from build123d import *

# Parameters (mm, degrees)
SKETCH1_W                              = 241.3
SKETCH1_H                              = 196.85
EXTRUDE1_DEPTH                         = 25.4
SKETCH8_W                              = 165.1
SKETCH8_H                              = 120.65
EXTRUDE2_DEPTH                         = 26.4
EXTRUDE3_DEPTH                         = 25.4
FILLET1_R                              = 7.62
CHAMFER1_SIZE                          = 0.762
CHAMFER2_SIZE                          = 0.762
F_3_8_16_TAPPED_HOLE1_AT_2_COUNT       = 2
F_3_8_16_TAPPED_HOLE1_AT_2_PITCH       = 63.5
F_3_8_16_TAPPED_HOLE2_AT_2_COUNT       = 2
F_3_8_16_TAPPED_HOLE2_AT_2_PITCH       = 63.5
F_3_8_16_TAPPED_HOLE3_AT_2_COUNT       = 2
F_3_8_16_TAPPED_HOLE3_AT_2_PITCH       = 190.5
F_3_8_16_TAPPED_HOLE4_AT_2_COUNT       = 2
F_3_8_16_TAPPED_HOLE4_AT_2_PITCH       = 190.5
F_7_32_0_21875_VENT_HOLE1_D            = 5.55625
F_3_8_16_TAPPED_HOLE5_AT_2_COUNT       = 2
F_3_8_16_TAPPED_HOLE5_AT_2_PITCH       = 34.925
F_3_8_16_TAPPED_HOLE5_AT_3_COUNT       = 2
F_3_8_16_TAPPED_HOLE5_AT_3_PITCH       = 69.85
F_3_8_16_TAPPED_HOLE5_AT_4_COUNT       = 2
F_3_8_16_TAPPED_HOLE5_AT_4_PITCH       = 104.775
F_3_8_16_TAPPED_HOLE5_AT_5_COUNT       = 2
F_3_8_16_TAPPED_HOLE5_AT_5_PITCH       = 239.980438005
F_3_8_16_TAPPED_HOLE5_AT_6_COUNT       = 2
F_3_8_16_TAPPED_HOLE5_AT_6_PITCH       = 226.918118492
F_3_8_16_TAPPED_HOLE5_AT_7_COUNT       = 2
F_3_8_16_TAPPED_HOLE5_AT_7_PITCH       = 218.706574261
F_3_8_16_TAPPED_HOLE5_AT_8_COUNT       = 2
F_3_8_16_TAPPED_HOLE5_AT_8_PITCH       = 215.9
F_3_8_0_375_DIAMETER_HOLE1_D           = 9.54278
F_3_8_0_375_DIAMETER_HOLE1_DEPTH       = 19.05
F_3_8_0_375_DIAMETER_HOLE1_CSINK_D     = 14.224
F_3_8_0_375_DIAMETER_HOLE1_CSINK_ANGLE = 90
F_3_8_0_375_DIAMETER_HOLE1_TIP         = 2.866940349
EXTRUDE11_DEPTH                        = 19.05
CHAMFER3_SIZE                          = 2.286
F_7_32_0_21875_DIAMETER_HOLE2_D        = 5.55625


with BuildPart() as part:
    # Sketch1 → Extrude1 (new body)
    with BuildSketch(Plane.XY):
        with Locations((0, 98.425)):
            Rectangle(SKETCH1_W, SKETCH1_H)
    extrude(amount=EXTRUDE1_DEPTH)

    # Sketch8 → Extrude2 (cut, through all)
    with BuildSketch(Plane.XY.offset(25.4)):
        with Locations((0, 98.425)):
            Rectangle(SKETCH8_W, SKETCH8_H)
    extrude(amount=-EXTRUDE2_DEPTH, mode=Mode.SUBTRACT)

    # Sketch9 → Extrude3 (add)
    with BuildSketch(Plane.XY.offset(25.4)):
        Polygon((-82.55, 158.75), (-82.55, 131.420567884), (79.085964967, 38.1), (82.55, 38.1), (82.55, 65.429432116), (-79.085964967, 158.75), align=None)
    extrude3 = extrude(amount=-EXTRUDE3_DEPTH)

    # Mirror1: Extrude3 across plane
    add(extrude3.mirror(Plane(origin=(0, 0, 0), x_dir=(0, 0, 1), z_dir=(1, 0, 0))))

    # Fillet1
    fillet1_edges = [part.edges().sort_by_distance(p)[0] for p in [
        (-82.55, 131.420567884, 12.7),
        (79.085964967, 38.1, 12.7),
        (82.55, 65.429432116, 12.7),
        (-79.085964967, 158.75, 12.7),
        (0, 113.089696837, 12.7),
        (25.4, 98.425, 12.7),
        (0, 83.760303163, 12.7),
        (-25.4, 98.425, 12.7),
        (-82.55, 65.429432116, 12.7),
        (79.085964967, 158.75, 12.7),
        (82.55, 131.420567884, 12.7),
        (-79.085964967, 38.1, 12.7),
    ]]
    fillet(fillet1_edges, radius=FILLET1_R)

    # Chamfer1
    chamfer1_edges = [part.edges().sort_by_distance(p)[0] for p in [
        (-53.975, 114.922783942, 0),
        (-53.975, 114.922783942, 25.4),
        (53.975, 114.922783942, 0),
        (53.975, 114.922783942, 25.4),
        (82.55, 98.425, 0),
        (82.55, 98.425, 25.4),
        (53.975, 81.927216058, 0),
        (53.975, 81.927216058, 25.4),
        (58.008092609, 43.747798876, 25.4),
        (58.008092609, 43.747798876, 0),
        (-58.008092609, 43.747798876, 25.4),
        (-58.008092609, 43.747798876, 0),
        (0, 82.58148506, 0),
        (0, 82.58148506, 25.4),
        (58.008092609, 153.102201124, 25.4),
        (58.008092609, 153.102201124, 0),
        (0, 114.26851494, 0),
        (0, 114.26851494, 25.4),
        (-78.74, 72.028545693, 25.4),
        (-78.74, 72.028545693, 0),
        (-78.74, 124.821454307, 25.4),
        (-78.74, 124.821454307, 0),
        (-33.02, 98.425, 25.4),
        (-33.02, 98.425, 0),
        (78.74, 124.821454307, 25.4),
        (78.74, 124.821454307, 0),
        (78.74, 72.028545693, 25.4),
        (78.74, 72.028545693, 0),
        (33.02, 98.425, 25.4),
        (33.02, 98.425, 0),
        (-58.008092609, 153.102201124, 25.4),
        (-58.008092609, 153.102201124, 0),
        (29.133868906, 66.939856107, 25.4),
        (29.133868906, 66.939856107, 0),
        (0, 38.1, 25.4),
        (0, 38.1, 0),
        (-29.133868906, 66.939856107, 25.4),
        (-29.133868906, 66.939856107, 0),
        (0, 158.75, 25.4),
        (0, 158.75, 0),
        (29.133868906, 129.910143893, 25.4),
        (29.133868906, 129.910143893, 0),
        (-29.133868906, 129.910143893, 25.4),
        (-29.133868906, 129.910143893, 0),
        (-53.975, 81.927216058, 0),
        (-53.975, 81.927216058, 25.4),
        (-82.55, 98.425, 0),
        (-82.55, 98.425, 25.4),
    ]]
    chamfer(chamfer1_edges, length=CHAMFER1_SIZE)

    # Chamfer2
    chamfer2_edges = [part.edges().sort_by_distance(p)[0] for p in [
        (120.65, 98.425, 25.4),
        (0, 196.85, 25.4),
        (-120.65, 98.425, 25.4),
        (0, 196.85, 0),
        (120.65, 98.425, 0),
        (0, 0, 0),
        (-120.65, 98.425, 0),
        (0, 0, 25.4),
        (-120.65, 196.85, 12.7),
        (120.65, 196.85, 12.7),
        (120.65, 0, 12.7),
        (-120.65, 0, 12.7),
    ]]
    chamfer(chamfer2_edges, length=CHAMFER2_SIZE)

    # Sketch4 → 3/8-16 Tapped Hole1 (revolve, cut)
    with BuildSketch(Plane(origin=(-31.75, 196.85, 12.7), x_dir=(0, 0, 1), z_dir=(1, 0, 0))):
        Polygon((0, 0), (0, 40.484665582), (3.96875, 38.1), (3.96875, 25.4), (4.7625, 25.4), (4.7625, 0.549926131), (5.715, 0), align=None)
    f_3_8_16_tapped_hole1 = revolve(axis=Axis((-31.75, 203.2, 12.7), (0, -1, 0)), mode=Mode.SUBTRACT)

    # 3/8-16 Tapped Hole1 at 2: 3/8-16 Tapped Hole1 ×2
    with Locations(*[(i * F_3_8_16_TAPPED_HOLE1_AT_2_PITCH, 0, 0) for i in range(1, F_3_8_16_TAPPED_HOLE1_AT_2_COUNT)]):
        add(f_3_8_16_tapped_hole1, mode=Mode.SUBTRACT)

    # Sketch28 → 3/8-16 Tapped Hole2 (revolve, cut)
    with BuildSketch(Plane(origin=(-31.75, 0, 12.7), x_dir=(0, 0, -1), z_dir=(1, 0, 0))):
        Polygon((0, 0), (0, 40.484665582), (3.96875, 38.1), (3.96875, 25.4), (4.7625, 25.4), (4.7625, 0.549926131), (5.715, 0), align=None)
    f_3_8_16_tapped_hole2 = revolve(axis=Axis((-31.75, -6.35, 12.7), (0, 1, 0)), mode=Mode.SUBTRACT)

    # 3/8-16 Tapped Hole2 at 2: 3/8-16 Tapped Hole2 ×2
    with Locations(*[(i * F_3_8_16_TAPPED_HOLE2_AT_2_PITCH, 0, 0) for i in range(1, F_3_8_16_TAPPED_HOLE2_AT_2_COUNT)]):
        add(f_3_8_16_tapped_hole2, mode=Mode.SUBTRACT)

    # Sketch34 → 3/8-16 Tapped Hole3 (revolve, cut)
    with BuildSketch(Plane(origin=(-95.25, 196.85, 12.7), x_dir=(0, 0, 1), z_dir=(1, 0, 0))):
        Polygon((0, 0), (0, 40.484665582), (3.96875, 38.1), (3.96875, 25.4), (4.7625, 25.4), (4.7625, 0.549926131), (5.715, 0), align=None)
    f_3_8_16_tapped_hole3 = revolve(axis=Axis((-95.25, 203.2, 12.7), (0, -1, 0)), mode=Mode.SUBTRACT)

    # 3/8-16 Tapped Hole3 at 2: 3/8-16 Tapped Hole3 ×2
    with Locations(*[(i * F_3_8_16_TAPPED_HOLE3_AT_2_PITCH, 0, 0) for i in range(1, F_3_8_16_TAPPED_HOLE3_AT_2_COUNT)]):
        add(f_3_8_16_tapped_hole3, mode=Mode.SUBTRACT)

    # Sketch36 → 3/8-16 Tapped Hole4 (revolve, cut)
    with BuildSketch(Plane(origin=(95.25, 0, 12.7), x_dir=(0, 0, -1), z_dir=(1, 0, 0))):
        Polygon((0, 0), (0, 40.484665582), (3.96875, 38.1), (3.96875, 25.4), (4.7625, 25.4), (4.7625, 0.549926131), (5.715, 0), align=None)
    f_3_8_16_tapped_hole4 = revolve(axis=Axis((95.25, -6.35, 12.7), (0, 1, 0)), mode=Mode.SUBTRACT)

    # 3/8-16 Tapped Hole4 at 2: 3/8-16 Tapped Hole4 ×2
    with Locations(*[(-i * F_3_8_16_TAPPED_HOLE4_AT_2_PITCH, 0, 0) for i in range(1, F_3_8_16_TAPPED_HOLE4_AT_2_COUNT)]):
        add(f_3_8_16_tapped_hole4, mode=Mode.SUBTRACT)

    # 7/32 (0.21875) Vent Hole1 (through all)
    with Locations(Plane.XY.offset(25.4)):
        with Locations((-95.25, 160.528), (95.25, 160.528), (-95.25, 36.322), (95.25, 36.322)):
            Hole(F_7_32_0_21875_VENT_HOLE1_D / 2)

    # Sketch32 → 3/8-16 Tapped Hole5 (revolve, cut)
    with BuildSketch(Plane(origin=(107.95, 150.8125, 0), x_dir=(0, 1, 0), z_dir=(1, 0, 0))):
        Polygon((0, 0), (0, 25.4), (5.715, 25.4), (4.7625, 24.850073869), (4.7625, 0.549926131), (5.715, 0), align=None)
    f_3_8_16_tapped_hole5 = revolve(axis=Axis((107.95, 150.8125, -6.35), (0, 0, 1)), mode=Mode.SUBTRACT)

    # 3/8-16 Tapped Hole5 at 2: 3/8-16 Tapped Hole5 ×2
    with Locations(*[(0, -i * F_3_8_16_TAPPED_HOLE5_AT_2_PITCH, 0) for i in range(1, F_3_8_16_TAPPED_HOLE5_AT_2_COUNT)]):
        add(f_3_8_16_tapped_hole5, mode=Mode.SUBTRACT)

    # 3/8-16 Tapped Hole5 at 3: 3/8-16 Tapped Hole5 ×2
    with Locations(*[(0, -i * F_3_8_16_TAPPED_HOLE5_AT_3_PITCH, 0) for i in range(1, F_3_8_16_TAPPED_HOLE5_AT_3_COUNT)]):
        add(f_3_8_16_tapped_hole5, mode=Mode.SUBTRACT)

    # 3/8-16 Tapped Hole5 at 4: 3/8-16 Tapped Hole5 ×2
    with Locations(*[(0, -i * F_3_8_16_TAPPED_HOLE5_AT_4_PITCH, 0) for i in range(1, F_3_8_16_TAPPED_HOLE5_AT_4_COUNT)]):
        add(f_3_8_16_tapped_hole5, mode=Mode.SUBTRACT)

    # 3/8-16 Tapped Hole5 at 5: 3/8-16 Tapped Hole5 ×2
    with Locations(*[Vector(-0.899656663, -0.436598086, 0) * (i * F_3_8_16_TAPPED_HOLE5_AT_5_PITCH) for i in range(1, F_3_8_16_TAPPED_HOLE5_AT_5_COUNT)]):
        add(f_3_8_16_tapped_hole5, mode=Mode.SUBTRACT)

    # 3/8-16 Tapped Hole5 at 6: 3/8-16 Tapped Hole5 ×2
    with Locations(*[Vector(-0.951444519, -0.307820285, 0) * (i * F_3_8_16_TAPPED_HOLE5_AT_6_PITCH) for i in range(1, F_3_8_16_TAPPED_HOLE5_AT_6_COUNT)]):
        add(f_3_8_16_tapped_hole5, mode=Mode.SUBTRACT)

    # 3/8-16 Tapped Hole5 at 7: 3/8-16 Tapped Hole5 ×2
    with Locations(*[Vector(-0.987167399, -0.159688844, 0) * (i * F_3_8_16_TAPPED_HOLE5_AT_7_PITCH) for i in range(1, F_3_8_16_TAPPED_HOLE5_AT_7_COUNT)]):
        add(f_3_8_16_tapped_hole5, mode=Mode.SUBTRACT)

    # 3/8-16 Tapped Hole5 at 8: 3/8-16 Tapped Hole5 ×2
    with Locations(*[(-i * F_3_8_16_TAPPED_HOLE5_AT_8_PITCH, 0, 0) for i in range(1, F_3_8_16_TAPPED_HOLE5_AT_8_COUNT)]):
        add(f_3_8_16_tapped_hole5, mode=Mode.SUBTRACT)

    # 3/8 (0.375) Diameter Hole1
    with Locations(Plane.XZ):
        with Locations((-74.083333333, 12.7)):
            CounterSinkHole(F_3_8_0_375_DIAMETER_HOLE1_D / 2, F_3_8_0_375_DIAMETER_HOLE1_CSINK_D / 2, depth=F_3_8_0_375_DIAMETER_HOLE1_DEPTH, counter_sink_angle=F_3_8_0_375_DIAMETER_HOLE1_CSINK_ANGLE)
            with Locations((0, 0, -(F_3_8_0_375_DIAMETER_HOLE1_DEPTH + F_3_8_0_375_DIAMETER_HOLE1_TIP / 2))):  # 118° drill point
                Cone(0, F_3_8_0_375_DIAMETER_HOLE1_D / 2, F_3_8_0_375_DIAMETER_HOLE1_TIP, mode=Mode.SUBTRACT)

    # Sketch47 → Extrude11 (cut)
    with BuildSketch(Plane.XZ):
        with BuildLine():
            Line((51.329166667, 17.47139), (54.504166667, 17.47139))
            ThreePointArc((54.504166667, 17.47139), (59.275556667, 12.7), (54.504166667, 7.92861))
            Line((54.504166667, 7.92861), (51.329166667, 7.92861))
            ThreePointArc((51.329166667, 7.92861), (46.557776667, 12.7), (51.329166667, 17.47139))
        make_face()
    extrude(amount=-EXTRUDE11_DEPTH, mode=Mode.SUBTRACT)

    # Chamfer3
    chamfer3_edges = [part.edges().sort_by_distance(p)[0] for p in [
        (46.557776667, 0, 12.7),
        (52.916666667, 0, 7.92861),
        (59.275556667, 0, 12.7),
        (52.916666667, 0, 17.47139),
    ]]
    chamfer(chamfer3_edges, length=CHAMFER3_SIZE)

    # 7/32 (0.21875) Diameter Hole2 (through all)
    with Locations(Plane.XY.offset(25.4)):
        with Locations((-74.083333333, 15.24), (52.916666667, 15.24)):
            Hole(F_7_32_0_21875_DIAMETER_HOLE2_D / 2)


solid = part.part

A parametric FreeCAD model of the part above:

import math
import FreeCAD as App
import Part
import Sketcher
from FreeCAD import Vector
Q = App.Units.Quantity


def edges_at(feature, points):
    """Names of the edges that pass closest to the given points."""
    edges = feature.Shape.Edges
    near = lambda p: min(range(len(edges)), key=lambda i: edges[i].distToShape(Part.Vertex(*p))[0])
    return sorted({f"Edge{near(p) + 1}" for p in points})

doc = App.newDocument("Part")
body = doc.addObject("PartDesign::Body", "Body")

sketch1 = body.newObject("Sketcher::SketchObject", "Sketch")
sketch1.AttachmentSupport = (doc.getObject("XY_Plane"), [""])
sketch1.MapMode = "FlatFace"
sketch1.addGeometry(Part.LineSegment(Vector(-120.65, 196.85, 0), Vector(-120.65, 0, 0)), False)
sketch1.addGeometry(Part.LineSegment(Vector(-120.65, 0, 0), Vector(120.65, 0, 0)), False)
sketch1.addGeometry(Part.LineSegment(Vector(120.65, 0, 0), Vector(120.65, 196.85, 0)), False)
sketch1.addGeometry(Part.LineSegment(Vector(120.65, 196.85, 0), Vector(-120.65, 196.85, 0)), False)
sketch1.addConstraint(Sketcher.Constraint("Coincident", 0, 2, 1, 1))
sketch1.addConstraint(Sketcher.Constraint("Coincident", 1, 2, 2, 1))
sketch1.addConstraint(Sketcher.Constraint("Coincident", 2, 2, 3, 1))
sketch1.addConstraint(Sketcher.Constraint("Coincident", 3, 2, 0, 1))
sketch1.addConstraint(Sketcher.Constraint("Vertical", 0))
sketch1.addConstraint(Sketcher.Constraint("Horizontal", 1))
sketch1.addConstraint(Sketcher.Constraint("Vertical", 2))
sketch1.addConstraint(Sketcher.Constraint("Horizontal", 3))
sketch1.addConstraint(Sketcher.Constraint("Symmetric", 0, 2, 1, 2, -1, 1))
sketch1.addConstraint(Sketcher.Constraint("DistanceX", 1, 1, 1, 2, Q("9.5 in")))
sketch1.addConstraint(Sketcher.Constraint("DistanceY", 0, 2, 0, 1, Q("7.75 in")))
pad1 = body.newObject("PartDesign::Pad", "Pad")
pad1.Profile = sketch1
pad1.Length = Q("1 in")

sketch2 = body.newObject("Sketcher::SketchObject", "Sketch001")
sketch2.AttachmentSupport = (doc.getObject("XY_Plane"), [""])
sketch2.MapMode = "FlatFace"
sketch2.AttachmentOffset = App.Placement(Vector(0, 0, 1 * 25.4), App.Rotation())
sketch2.addGeometry(Part.LineSegment(Vector(-82.55, 158.75, 0), Vector(-82.55, 38.1, 0)), False)
sketch2.addGeometry(Part.LineSegment(Vector(-82.55, 38.1, 0), Vector(82.55, 38.1, 0)), False)
sketch2.addGeometry(Part.LineSegment(Vector(82.55, 38.1, 0), Vector(82.55, 158.75, 0)), False)
sketch2.addGeometry(Part.LineSegment(Vector(82.55, 158.75, 0), Vector(-82.55, 158.75, 0)), False)
sketch2.addConstraint(Sketcher.Constraint("Coincident", 0, 2, 1, 1))
sketch2.addConstraint(Sketcher.Constraint("Coincident", 1, 2, 2, 1))
sketch2.addConstraint(Sketcher.Constraint("Coincident", 2, 2, 3, 1))
sketch2.addConstraint(Sketcher.Constraint("Coincident", 3, 2, 0, 1))
sketch2.addConstraint(Sketcher.Constraint("Vertical", 0))
sketch2.addConstraint(Sketcher.Constraint("Horizontal", 1))
sketch2.addConstraint(Sketcher.Constraint("Vertical", 2))
sketch2.addConstraint(Sketcher.Constraint("Horizontal", 3))
sketch2.addConstraint(Sketcher.Constraint("DistanceX", 1, 1, 1, 2, Q("6.5 in")))
sketch2.addConstraint(Sketcher.Constraint("DistanceY", 0, 2, 0, 1, Q("4.75 in")))
sketch2.addConstraint(Sketcher.Constraint("DistanceY", -1, 1, 0, 2, Q("1.5 in")))
sketch2.addConstraint(Sketcher.Constraint("DistanceX", 0, 2, -1, 1, Q("3.25 in")))
pocket1 = body.newObject("PartDesign::Pocket", "Pocket")
pocket1.Profile = sketch2
pocket1.Type = "ThroughAll"

sketch3 = body.newObject("Sketcher::SketchObject", "Sketch002")
sketch3.AttachmentSupport = (doc.getObject("XY_Plane"), [""])
sketch3.MapMode = "FlatFace"
sketch3.AttachmentOffset = App.Placement(Vector(0, 0, 1 * 25.4), App.Rotation())
sketch3.addGeometry(Part.LineSegment(Vector(-82.55, 158.75, 0), Vector(-82.55, 131.420568, 0)), False)
sketch3.addGeometry(Part.LineSegment(Vector(-82.55, 131.420568, 0), Vector(79.085965, 38.1, 0)), False)
sketch3.addGeometry(Part.LineSegment(Vector(79.085965, 38.1, 0), Vector(82.55, 38.1, 0)), False)
sketch3.addGeometry(Part.LineSegment(Vector(82.55, 38.1, 0), Vector(82.55, 65.429432, 0)), False)
sketch3.addGeometry(Part.LineSegment(Vector(82.55, 65.429432, 0), Vector(-79.085965, 158.75, 0)), False)
sketch3.addGeometry(Part.LineSegment(Vector(-79.085965, 158.75, 0), Vector(-82.55, 158.75, 0)), False)
sketch3.addConstraint(Sketcher.Constraint("Coincident", 0, 2, 1, 1))
sketch3.addConstraint(Sketcher.Constraint("Coincident", 1, 2, 2, 1))
sketch3.addConstraint(Sketcher.Constraint("Coincident", 2, 2, 3, 1))
sketch3.addConstraint(Sketcher.Constraint("Coincident", 3, 2, 4, 1))
sketch3.addConstraint(Sketcher.Constraint("Coincident", 4, 2, 5, 1))
sketch3.addConstraint(Sketcher.Constraint("Coincident", 5, 2, 0, 1))
sketch3.addConstraint(Sketcher.Constraint("Vertical", 0))
sketch3.addConstraint(Sketcher.Constraint("Horizontal", 2))
sketch3.addConstraint(Sketcher.Constraint("Vertical", 3))
sketch3.addConstraint(Sketcher.Constraint("Horizontal", 5))
sketch3.addConstraint(Sketcher.Constraint("Parallel", 1, 4))
sketch3.addConstraint(Sketcher.Constraint("Equal", 2, 5))
sketch3.addConstraint(Sketcher.Constraint("Angle", 1, Q("-30 deg")))
sketch3.addConstraint(Sketcher.Constraint("DistanceY", -1, 1, 1, 2, Q("1.5 in")))
sketch3.addConstraint(Sketcher.Constraint("DistanceX", 0, 2, 2, 2, Q("6.5 in")))
sketch3.addConstraint(Sketcher.Constraint("DistanceX", 0, 2, -1, 1, Q("3.25 in")))
sketch3.addConstraint(Sketcher.Constraint("DistanceY", -1, 1, 4, 2, Q("6.25 in")))
sketch3.addConstraint(Sketcher.Constraint("DistanceX", 2, 1, 2, 2, 3.464035))
pad2 = body.newObject("PartDesign::Pad", "Pad001")
pad2.Profile = sketch3
pad2.Length = Q("1 in")
pad2.Reversed = True
doc.recompute()

mirrored = body.newObject("PartDesign::Mirrored", "Mirrored")
mirrored.Originals = [pad2]
mirrored.MirrorPlane = (doc.getObject("YZ_Plane"), [""])
body.Tip = mirrored
doc.recompute()

fillet = body.newObject("PartDesign::Fillet", "Fillet")
fillet.Base = (mirrored, edges_at(mirrored, [
    (-82.55, 131.421, 12.7),
    (79.086, 38.1, 12.7),
    (82.55, 65.429, 12.7),
    (-79.086, 158.75, 12.7),
    (0, 113.09, 12.7),
    (25.4, 98.425, 12.7),
    (0, 83.76, 12.7),
    (-25.4, 98.425, 12.7),
    (-82.55, 65.429, 12.7),
    (79.086, 158.75, 12.7),
    (82.55, 131.421, 12.7),
    (-79.086, 38.1, 12.7),
]))
fillet.Radius = Q("0.3 in")
doc.recompute()

chamfer = body.newObject("PartDesign::Chamfer", "Chamfer")
chamfer.Base = (fillet, edges_at(fillet, [
    (-53.975, 114.923, 0),
    (-53.975, 114.923, 25.4),
    (53.975, 114.923, 0),
    (53.975, 114.923, 25.4),
    (82.55, 98.425, 0),
    (82.55, 98.425, 25.4),
    (53.975, 81.927, 0),
    (53.975, 81.927, 25.4),
    (58.008, 43.748, 25.4),
    (58.008, 43.748, 0),
    (-58.008, 43.748, 25.4),
    (-58.008, 43.748, 0),
    (0, 82.581, 0),
    (0, 82.581, 25.4),
    (58.008, 153.102, 25.4),
    (58.008, 153.102, 0),
    (0, 114.269, 0),
    (0, 114.269, 25.4),
    (-78.74, 72.029, 25.4),
    (-78.74, 72.029, 0),
    (-78.74, 124.821, 25.4),
    (-78.74, 124.821, 0),
    (-33.02, 98.425, 25.4),
    (-33.02, 98.425, 0),
    (78.74, 124.821, 25.4),
    (78.74, 124.821, 0),
    (78.74, 72.029, 25.4),
    (78.74, 72.029, 0),
    (33.02, 98.425, 25.4),
    (33.02, 98.425, 0),
    (-58.008, 153.102, 25.4),
    (-58.008, 153.102, 0),
    (29.134, 66.94, 25.4),
    (29.134, 66.94, 0),
    (0, 38.1, 25.4),
    (0, 38.1, 0),
    (-29.134, 66.94, 25.4),
    (-29.134, 66.94, 0),
    (0, 158.75, 25.4),
    (0, 158.75, 0),
    (29.134, 129.91, 25.4),
    (29.134, 129.91, 0),
    (-29.134, 129.91, 25.4),
    (-29.134, 129.91, 0),
    (-53.975, 81.927, 0),
    (-53.975, 81.927, 25.4),
    (-82.55, 98.425, 0),
    (-82.55, 98.425, 25.4),
]))
chamfer.Size = Q("0.03 in")
doc.recompute()

chamfer2 = body.newObject("PartDesign::Chamfer", "Chamfer001")
chamfer2.Base = (chamfer, edges_at(chamfer, [
    (120.65, 98.425, 25.4),
    (0, 196.85, 25.4),
    (-120.65, 98.425, 25.4),
    (0, 196.85, 0),
    (120.65, 98.425, 0),
    (0, 0, 0),
    (-120.65, 98.425, 0),
    (0, 0, 25.4),
    (-120.65, 196.85, 12.7),
    (120.65, 196.85, 12.7),
    (120.65, 0, 12.7),
    (-120.65, 0, 12.7),
]))
chamfer2.Size = Q("0.03 in")

sketch4 = body.newObject("Sketcher::SketchObject", "Sketch003")
sketch4.AttachmentSupport = (doc.getObject("YZ_Plane"), [""])
sketch4.MapMode = "FlatFace"
sketch4.AttachmentOffset = App.Placement(Vector(0, 0, -1.25 * 25.4), App.Rotation())
sketch4.addGeometry(Part.LineSegment(Vector(156.365334, 12.7, 0), Vector(196.85, 12.7, 0)), False)
sketch4.addGeometry(Part.LineSegment(Vector(196.85, 12.7, 0), Vector(196.85, 18.415, 0)), False)
sketch4.addGeometry(Part.LineSegment(Vector(196.85, 18.415, 0), Vector(196.300074, 17.4625, 0)), False)
sketch4.addGeometry(Part.LineSegment(Vector(196.300074, 17.4625, 0), Vector(171.45, 17.4625, 0)), False)
sketch4.addGeometry(Part.LineSegment(Vector(171.45, 17.4625, 0), Vector(171.45, 16.66875, 0)), False)
sketch4.addGeometry(Part.LineSegment(Vector(171.45, 16.66875, 0), Vector(158.75, 16.66875, 0)), False)
sketch4.addGeometry(Part.LineSegment(Vector(158.75, 16.66875, 0), Vector(156.365334, 12.7, 0)), False)
sketch4.addGeometry(Part.LineSegment(Vector(196.85, 12.7, 0), Vector(156.365334, 12.7, 0)), True)
sketch4.addConstraint(Sketcher.Constraint("Coincident", 0, 2, 1, 1))
sketch4.addConstraint(Sketcher.Constraint("Coincident", 1, 2, 2, 1))
sketch4.addConstraint(Sketcher.Constraint("Coincident", 2, 2, 3, 1))
sketch4.addConstraint(Sketcher.Constraint("Coincident", 3, 2, 4, 1))
sketch4.addConstraint(Sketcher.Constraint("Coincident", 4, 2, 5, 1))
sketch4.addConstraint(Sketcher.Constraint("Coincident", 5, 2, 6, 1))
sketch4.addConstraint(Sketcher.Constraint("Coincident", 6, 2, 0, 1))
sketch4.addConstraint(Sketcher.Constraint("Horizontal", 0))
sketch4.addConstraint(Sketcher.Constraint("Vertical", 1))
sketch4.addConstraint(Sketcher.Constraint("Horizontal", 3))
sketch4.addConstraint(Sketcher.Constraint("Vertical", 4))
sketch4.addConstraint(Sketcher.Constraint("Horizontal", 5))
sketch4.addConstraint(Sketcher.Constraint("Horizontal", 7))
sketch4.addConstraint(Sketcher.Constraint("Coincident", 7, 1, 0, 2))
sketch4.addConstraint(Sketcher.Constraint("Equal", 0, 7))
sketch4.addConstraint(Sketcher.Constraint("DistanceX", 5, 2, 5, 1, Q("0.5 in")))
sketch4.addConstraint(Sketcher.Constraint("Angle", 2, Q("-120 deg")))
sketch4.addConstraint(Sketcher.Constraint("Angle", 6, Q("-121 deg")))
sketch4.addConstraint(Sketcher.Constraint("DistanceX", 3, 2, 1, 2, Q("1 in")))
sketch4.addConstraint(Sketcher.Constraint("DistanceY", -1, 1, 0, 2, Q("0.5 in")))
sketch4.addConstraint(Sketcher.Constraint("DistanceY", 1, 1, 1, 2, Q("0.225 in")))
sketch4.addConstraint(Sketcher.Constraint("DistanceY", 4, 2, 4, 1, Q("0.03125 in")))
sketch4.addConstraint(Sketcher.Constraint("DistanceX", -1, 1, 0, 2, Q("7.75 in")))
sketch4.addConstraint(Sketcher.Constraint("DistanceY", -1, 1, 2, 2, Q("0.6875 in")))
groove = body.newObject("PartDesign::Groove", "Groove")
groove.Profile = sketch4
groove.ReferenceAxis = (sketch4, ["Axis0"])
groove.Angle = 360
doc.recompute()

linearpattern = body.newObject("PartDesign::LinearPattern", "LinearPattern")
linearpattern.Originals = [groove]
linearpattern.Direction = (doc.getObject("X_Axis"), [""])
linearpattern.Mode = "offset"
linearpattern.Offset = Q("2.5 in")
linearpattern.Occurrences = 2
body.Tip = linearpattern

sketch5 = body.newObject("Sketcher::SketchObject", "Sketch004")
sketch5.AttachmentSupport = (doc.getObject("YZ_Plane"), [""])
sketch5.MapMode = "FlatFace"
sketch5.AttachmentOffset = App.Placement(Vector(0, 0, -1.25 * 25.4), App.Rotation())
sketch5.addGeometry(Part.LineSegment(Vector(40.484666, 12.7, 0), Vector(0, 12.7, 0)), False)
sketch5.addGeometry(Part.LineSegment(Vector(0, 12.7, 0), Vector(0, 6.985, 0)), False)
sketch5.addGeometry(Part.LineSegment(Vector(0, 6.985, 0), Vector(0.549926, 7.9375, 0)), False)
sketch5.addGeometry(Part.LineSegment(Vector(0.549926, 7.9375, 0), Vector(25.4, 7.9375, 0)), False)
sketch5.addGeometry(Part.LineSegment(Vector(25.4, 7.9375, 0), Vector(25.4, 8.73125, 0)), False)
sketch5.addGeometry(Part.LineSegment(Vector(25.4, 8.73125, 0), Vector(38.1, 8.73125, 0)), False)
sketch5.addGeometry(Part.LineSegment(Vector(38.1, 8.73125, 0), Vector(40.484666, 12.7, 0)), False)
sketch5.addGeometry(Part.LineSegment(Vector(0, 12.7, 0), Vector(40.484666, 12.7, 0)), True)
sketch5.addConstraint(Sketcher.Constraint("Coincident", 0, 2, 1, 1))
sketch5.addConstraint(Sketcher.Constraint("Coincident", 1, 2, 2, 1))
sketch5.addConstraint(Sketcher.Constraint("Coincident", 2, 2, 3, 1))
sketch5.addConstraint(Sketcher.Constraint("Coincident", 3, 2, 4, 1))
sketch5.addConstraint(Sketcher.Constraint("Coincident", 4, 2, 5, 1))
sketch5.addConstraint(Sketcher.Constraint("Coincident", 5, 2, 6, 1))
sketch5.addConstraint(Sketcher.Constraint("Coincident", 6, 2, 0, 1))
sketch5.addConstraint(Sketcher.Constraint("Horizontal", 0))
sketch5.addConstraint(Sketcher.Constraint("Vertical", 1))
sketch5.addConstraint(Sketcher.Constraint("Horizontal", 3))
sketch5.addConstraint(Sketcher.Constraint("Vertical", 4))
sketch5.addConstraint(Sketcher.Constraint("Horizontal", 5))
sketch5.addConstraint(Sketcher.Constraint("Horizontal", 7))
sketch5.addConstraint(Sketcher.Constraint("Coincident", 7, 1, 0, 2))
sketch5.addConstraint(Sketcher.Constraint("PointOnObject", 0, 2, -2))
sketch5.addConstraint(Sketcher.Constraint("Equal", 0, 7))
sketch5.addConstraint(Sketcher.Constraint("DistanceX", 5, 1, 5, 2, Q("0.5 in")))
sketch5.addConstraint(Sketcher.Constraint("DistanceX", -1, 1, 3, 2, Q("1 in")))
sketch5.addConstraint(Sketcher.Constraint("Angle", 2, Q("60 deg")))
sketch5.addConstraint(Sketcher.Constraint("Angle", 6, Q("59 deg")))
sketch5.addConstraint(Sketcher.Constraint("DistanceY", -1, 1, 0, 2, Q("0.5 in")))
sketch5.addConstraint(Sketcher.Constraint("DistanceY", 1, 2, 1, 1, Q("0.225 in")))
sketch5.addConstraint(Sketcher.Constraint("DistanceY", 4, 1, 4, 2, Q("0.03125 in")))
sketch5.addConstraint(Sketcher.Constraint("DistanceY", -1, 1, 2, 2, Q("0.3125 in")))
groove2 = body.newObject("PartDesign::Groove", "Groove001")
groove2.Profile = sketch5
groove2.ReferenceAxis = (sketch5, ["Axis0"])
groove2.Angle = 360
doc.recompute()

linearpattern2 = body.newObject("PartDesign::LinearPattern", "LinearPattern001")
linearpattern2.Originals = [groove2]
linearpattern2.Direction = (doc.getObject("X_Axis"), [""])
linearpattern2.Mode = "offset"
linearpattern2.Offset = Q("2.5 in")
linearpattern2.Occurrences = 2
body.Tip = linearpattern2

sketch6 = body.newObject("Sketcher::SketchObject", "Sketch005")
sketch6.AttachmentSupport = (doc.getObject("YZ_Plane"), [""])
sketch6.MapMode = "FlatFace"
sketch6.AttachmentOffset = App.Placement(Vector(0, 0, -3.75 * 25.4), App.Rotation())
sketch6.addGeometry(Part.LineSegment(Vector(156.365334, 12.7, 0), Vector(196.85, 12.7, 0)), False)
sketch6.addGeometry(Part.LineSegment(Vector(196.85, 12.7, 0), Vector(196.85, 18.415, 0)), False)
sketch6.addGeometry(Part.LineSegment(Vector(196.85, 18.415, 0), Vector(196.300074, 17.4625, 0)), False)
sketch6.addGeometry(Part.LineSegment(Vector(196.300074, 17.4625, 0), Vector(171.45, 17.4625, 0)), False)
sketch6.addGeometry(Part.LineSegment(Vector(171.45, 17.4625, 0), Vector(171.45, 16.66875, 0)), False)
sketch6.addGeometry(Part.LineSegment(Vector(171.45, 16.66875, 0), Vector(158.75, 16.66875, 0)), False)
sketch6.addGeometry(Part.LineSegment(Vector(158.75, 16.66875, 0), Vector(156.365334, 12.7, 0)), False)
sketch6.addGeometry(Part.LineSegment(Vector(196.85, 12.7, 0), Vector(156.365334, 12.7, 0)), True)
sketch6.addConstraint(Sketcher.Constraint("Coincident", 0, 2, 1, 1))
sketch6.addConstraint(Sketcher.Constraint("Coincident", 1, 2, 2, 1))
sketch6.addConstraint(Sketcher.Constraint("Coincident", 2, 2, 3, 1))
sketch6.addConstraint(Sketcher.Constraint("Coincident", 3, 2, 4, 1))
sketch6.addConstraint(Sketcher.Constraint("Coincident", 4, 2, 5, 1))
sketch6.addConstraint(Sketcher.Constraint("Coincident", 5, 2, 6, 1))
sketch6.addConstraint(Sketcher.Constraint("Coincident", 6, 2, 0, 1))
sketch6.addConstraint(Sketcher.Constraint("Horizontal", 0))
sketch6.addConstraint(Sketcher.Constraint("Vertical", 1))
sketch6.addConstraint(Sketcher.Constraint("Horizontal", 3))
sketch6.addConstraint(Sketcher.Constraint("Vertical", 4))
sketch6.addConstraint(Sketcher.Constraint("Horizontal", 5))
sketch6.addConstraint(Sketcher.Constraint("Horizontal", 7))
sketch6.addConstraint(Sketcher.Constraint("Coincident", 7, 1, 0, 2))
sketch6.addConstraint(Sketcher.Constraint("Equal", 0, 7))
sketch6.addConstraint(Sketcher.Constraint("DistanceX", 5, 2, 5, 1, Q("0.5 in")))
sketch6.addConstraint(Sketcher.Constraint("Angle", 2, Q("-120 deg")))
sketch6.addConstraint(Sketcher.Constraint("Angle", 6, Q("-121 deg")))
sketch6.addConstraint(Sketcher.Constraint("DistanceX", 3, 2, 1, 2, Q("1 in")))
sketch6.addConstraint(Sketcher.Constraint("DistanceY", -1, 1, 0, 2, Q("0.5 in")))
sketch6.addConstraint(Sketcher.Constraint("DistanceY", 1, 1, 1, 2, Q("0.225 in")))
sketch6.addConstraint(Sketcher.Constraint("DistanceY", 4, 2, 4, 1, Q("0.03125 in")))
sketch6.addConstraint(Sketcher.Constraint("DistanceX", -1, 1, 0, 2, Q("7.75 in")))
sketch6.addConstraint(Sketcher.Constraint("DistanceY", -1, 1, 2, 2, Q("0.6875 in")))
groove3 = body.newObject("PartDesign::Groove", "Groove002")
groove3.Profile = sketch6
groove3.ReferenceAxis = (sketch6, ["Axis0"])
groove3.Angle = 360
doc.recompute()

linearpattern3 = body.newObject("PartDesign::LinearPattern", "LinearPattern002")
linearpattern3.Originals = [groove3]
linearpattern3.Direction = (doc.getObject("X_Axis"), [""])
linearpattern3.Mode = "offset"
linearpattern3.Offset = Q("7.5 in")
linearpattern3.Occurrences = 2
body.Tip = linearpattern3

sketch7 = body.newObject("Sketcher::SketchObject", "Sketch006")
sketch7.AttachmentSupport = (doc.getObject("YZ_Plane"), [""])
sketch7.MapMode = "FlatFace"
sketch7.AttachmentOffset = App.Placement(Vector(0, 0, 3.75 * 25.4), App.Rotation())
sketch7.addGeometry(Part.LineSegment(Vector(40.484666, 12.7, 0), Vector(0, 12.7, 0)), False)
sketch7.addGeometry(Part.LineSegment(Vector(0, 12.7, 0), Vector(0, 6.985, 0)), False)
sketch7.addGeometry(Part.LineSegment(Vector(0, 6.985, 0), Vector(0.549926, 7.9375, 0)), False)
sketch7.addGeometry(Part.LineSegment(Vector(0.549926, 7.9375, 0), Vector(25.4, 7.9375, 0)), False)
sketch7.addGeometry(Part.LineSegment(Vector(25.4, 7.9375, 0), Vector(25.4, 8.73125, 0)), False)
sketch7.addGeometry(Part.LineSegment(Vector(25.4, 8.73125, 0), Vector(38.1, 8.73125, 0)), False)
sketch7.addGeometry(Part.LineSegment(Vector(38.1, 8.73125, 0), Vector(40.484666, 12.7, 0)), False)
sketch7.addGeometry(Part.LineSegment(Vector(0, 12.7, 0), Vector(40.484666, 12.7, 0)), True)
sketch7.addConstraint(Sketcher.Constraint("Coincident", 0, 2, 1, 1))
sketch7.addConstraint(Sketcher.Constraint("Coincident", 1, 2, 2, 1))
sketch7.addConstraint(Sketcher.Constraint("Coincident", 2, 2, 3, 1))
sketch7.addConstraint(Sketcher.Constraint("Coincident", 3, 2, 4, 1))
sketch7.addConstraint(Sketcher.Constraint("Coincident", 4, 2, 5, 1))
sketch7.addConstraint(Sketcher.Constraint("Coincident", 5, 2, 6, 1))
sketch7.addConstraint(Sketcher.Constraint("Coincident", 6, 2, 0, 1))
sketch7.addConstraint(Sketcher.Constraint("Horizontal", 0))
sketch7.addConstraint(Sketcher.Constraint("Vertical", 1))
sketch7.addConstraint(Sketcher.Constraint("Horizontal", 3))
sketch7.addConstraint(Sketcher.Constraint("Vertical", 4))
sketch7.addConstraint(Sketcher.Constraint("Horizontal", 5))
sketch7.addConstraint(Sketcher.Constraint("Horizontal", 7))
sketch7.addConstraint(Sketcher.Constraint("Coincident", 7, 1, 0, 2))
sketch7.addConstraint(Sketcher.Constraint("PointOnObject", 0, 2, -2))
sketch7.addConstraint(Sketcher.Constraint("Equal", 0, 7))
sketch7.addConstraint(Sketcher.Constraint("DistanceX", 5, 1, 5, 2, Q("0.5 in")))
sketch7.addConstraint(Sketcher.Constraint("DistanceX", -1, 1, 3, 2, Q("1 in")))
sketch7.addConstraint(Sketcher.Constraint("Angle", 2, Q("60 deg")))
sketch7.addConstraint(Sketcher.Constraint("Angle", 6, Q("59 deg")))
sketch7.addConstraint(Sketcher.Constraint("DistanceY", -1, 1, 0, 2, Q("0.5 in")))
sketch7.addConstraint(Sketcher.Constraint("DistanceY", 1, 2, 1, 1, Q("0.225 in")))
sketch7.addConstraint(Sketcher.Constraint("DistanceY", 4, 1, 4, 2, Q("0.03125 in")))
sketch7.addConstraint(Sketcher.Constraint("DistanceY", -1, 1, 2, 2, Q("0.3125 in")))
groove4 = body.newObject("PartDesign::Groove", "Groove003")
groove4.Profile = sketch7
groove4.ReferenceAxis = (sketch7, ["Axis0"])
groove4.Angle = 360
doc.recompute()

linearpattern4 = body.newObject("PartDesign::LinearPattern", "LinearPattern003")
linearpattern4.Originals = [groove4]
linearpattern4.Direction = (doc.getObject("X_Axis"), [""])
linearpattern4.Mode = "offset"
linearpattern4.Offset = Q("7.5 in")
linearpattern4.Occurrences = 2
linearpattern4.Reversed = True
body.Tip = linearpattern4

sketch8 = body.newObject("Sketcher::SketchObject", "Sketch007")
sketch8.AttachmentSupport = (doc.getObject("XY_Plane"), [""])
sketch8.MapMode = "FlatFace"
sketch8.AttachmentOffset = App.Placement(Vector(0, 0, 1 * 25.4), App.Rotation())
sketch8.addGeometry(Part.Circle(Vector(-95.25, 160.528, 0), Vector(0, 0, 1), 2.778125), False)
sketch8.addGeometry(Part.Circle(Vector(95.25, 160.528, 0), Vector(0, 0, 1), 2.778125), False)
sketch8.addGeometry(Part.Circle(Vector(-95.25, 36.322, 0), Vector(0, 0, 1), 2.778125), False)
sketch8.addGeometry(Part.Circle(Vector(95.25, 36.322, 0), Vector(0, 0, 1), 2.778125), False)
sketch8.addConstraint(Sketcher.Constraint("Equal", 0, 1))
sketch8.addConstraint(Sketcher.Constraint("Equal", 1, 2))
sketch8.addConstraint(Sketcher.Constraint("Equal", 2, 3))
sketch8.addConstraint(Sketcher.Constraint("Symmetric", 0, 3, 1, 3, -2))
sketch8.addConstraint(Sketcher.Constraint("Symmetric", 2, 3, 3, 3, -2))
sketch8.addConstraint(Sketcher.Constraint("Vertical", 0, 3, 2, 3))
sketch8.addConstraint(Sketcher.Constraint("Diameter", 0, Q("0.21875 in")))
sketch8.addConstraint(Sketcher.Constraint("DistanceX", 0, 3, 1, 3, Q("7.5 in")))
sketch8.addConstraint(Sketcher.Constraint("DistanceY", -1, 1, 0, 3, Q("6.32 in")))
sketch8.addConstraint(Sketcher.Constraint("DistanceY", -1, 1, 2, 3, Q("1.43 in")))
doc.recompute()
hole = body.newObject("PartDesign::Hole", "Hole")
hole.Profile = sketch8
hole.ThreadType = "None"
hole.Diameter = Q("0.21875 in")
hole.DepthType = "ThroughAll"

sketch9 = body.newObject("Sketcher::SketchObject", "Sketch008")
sketch9.AttachmentSupport = (doc.getObject("YZ_Plane"), [""])
sketch9.MapMode = "FlatFace"
sketch9.AttachmentOffset = App.Placement(Vector(0, 0, 4.25 * 25.4), App.Rotation())
sketch9.addGeometry(Part.LineSegment(Vector(150.8125, 25.4, 0), Vector(150.8125, 0, 0)), False)
sketch9.addGeometry(Part.LineSegment(Vector(150.8125, 0, 0), Vector(156.5275, 0, 0)), False)
sketch9.addGeometry(Part.LineSegment(Vector(156.5275, 0, 0), Vector(155.575, 0.549926, 0)), False)
sketch9.addGeometry(Part.LineSegment(Vector(155.575, 0.549926, 0), Vector(155.575, 24.850074, 0)), False)
sketch9.addGeometry(Part.LineSegment(Vector(155.575, 24.850074, 0), Vector(156.5275, 25.4, 0)), False)
sketch9.addGeometry(Part.LineSegment(Vector(156.5275, 25.4, 0), Vector(150.8125, 25.4, 0)), False)
sketch9.addGeometry(Part.LineSegment(Vector(150.8125, 0, 0), Vector(150.8125, 25.4, 0)), True)
sketch9.addConstraint(Sketcher.Constraint("Coincident", 0, 2, 1, 1))
sketch9.addConstraint(Sketcher.Constraint("Coincident", 1, 2, 2, 1))
sketch9.addConstraint(Sketcher.Constraint("Coincident", 2, 2, 3, 1))
sketch9.addConstraint(Sketcher.Constraint("Coincident", 3, 2, 4, 1))
sketch9.addConstraint(Sketcher.Constraint("Coincident", 4, 2, 5, 1))
sketch9.addConstraint(Sketcher.Constraint("Coincident", 5, 2, 0, 1))
sketch9.addConstraint(Sketcher.Constraint("Vertical", 0))
sketch9.addConstraint(Sketcher.Constraint("Horizontal", 1))
sketch9.addConstraint(Sketcher.Constraint("Vertical", 3))
sketch9.addConstraint(Sketcher.Constraint("Horizontal", 5))
sketch9.addConstraint(Sketcher.Constraint("Vertical", 6))
sketch9.addConstraint(Sketcher.Constraint("Coincident", 6, 1, 0, 2))
sketch9.addConstraint(Sketcher.Constraint("PointOnObject", 0, 2, -1))
sketch9.addConstraint(Sketcher.Constraint("Horizontal", 4, 2, 6, 2))
sketch9.addConstraint(Sketcher.Constraint("Vertical", 1, 2, 4, 2))
sketch9.addConstraint(Sketcher.Constraint("Equal", 2, 4))
sketch9.addConstraint(Sketcher.Constraint("DistanceY", 0, 2, 0, 1, Q("1 in")))
sketch9.addConstraint(Sketcher.Constraint("Angle", 2, Q("150 deg")))
sketch9.addConstraint(Sketcher.Constraint("DistanceX", 1, 1, 1, 2, Q("0.225 in")))
sketch9.addConstraint(Sketcher.Constraint("DistanceX", -1, 1, 0, 2, Q("5.9375 in")))
sketch9.addConstraint(Sketcher.Constraint("DistanceX", -1, 1, 2, 2, Q("6.125 in")))
groove5 = body.newObject("PartDesign::Groove", "Groove004")
groove5.Profile = sketch9
groove5.ReferenceAxis = (sketch9, ["Axis0"])
groove5.Angle = 360
doc.recompute()

linearpattern5 = body.newObject("PartDesign::LinearPattern", "LinearPattern004")
linearpattern5.Originals = [groove5]
linearpattern5.Direction = (doc.getObject("Y_Axis"), [""])
linearpattern5.Mode = "offset"
linearpattern5.Offset = Q("1.375 in")
linearpattern5.Occurrences = 2
linearpattern5.Reversed = True
body.Tip = linearpattern5
doc.recompute()

linearpattern6 = body.newObject("PartDesign::LinearPattern", "LinearPattern005")
linearpattern6.Originals = [groove5]
linearpattern6.Direction = (doc.getObject("Y_Axis"), [""])
linearpattern6.Mode = "offset"
linearpattern6.Offset = Q("2.75 in")
linearpattern6.Occurrences = 2
linearpattern6.Reversed = True
body.Tip = linearpattern6
doc.recompute()

linearpattern7 = body.newObject("PartDesign::LinearPattern", "LinearPattern006")
linearpattern7.Originals = [groove5]
linearpattern7.Direction = (doc.getObject("Y_Axis"), [""])
linearpattern7.Mode = "offset"
linearpattern7.Offset = Q("4.125 in")
linearpattern7.Occurrences = 2
linearpattern7.Reversed = True
body.Tip = linearpattern7
doc.recompute()

datumline = body.newObject("PartDesign::Line", "DatumLine")
datumline.Placement = App.Placement(Vector(0, 0, 0), App.Rotation(Vector(0, 0, 1), Vector(-0.899656663, -0.436598086, 0)))
linearpattern8 = body.newObject("PartDesign::LinearPattern", "LinearPattern007")
linearpattern8.Originals = [groove5]
linearpattern8.Direction = (datumline, [""])
linearpattern8.Mode = "offset"
linearpattern8.Offset = 239.980438
linearpattern8.Occurrences = 2
body.Tip = linearpattern8
doc.recompute()

datumline2 = body.newObject("PartDesign::Line", "DatumLine001")
datumline2.Placement = App.Placement(Vector(0, 0, 0), App.Rotation(Vector(0, 0, 1), Vector(-0.951444519, -0.307820285, 0)))
linearpattern9 = body.newObject("PartDesign::LinearPattern", "LinearPattern008")
linearpattern9.Originals = [groove5]
linearpattern9.Direction = (datumline2, [""])
linearpattern9.Mode = "offset"
linearpattern9.Offset = 226.918119
linearpattern9.Occurrences = 2
body.Tip = linearpattern9
doc.recompute()

datumline3 = body.newObject("PartDesign::Line", "DatumLine002")
datumline3.Placement = App.Placement(Vector(0, 0, 0), App.Rotation(Vector(0, 0, 1), Vector(-0.987167399, -0.159688844, 0)))
linearpattern10 = body.newObject("PartDesign::LinearPattern", "LinearPattern009")
linearpattern10.Originals = [groove5]
linearpattern10.Direction = (datumline3, [""])
linearpattern10.Mode = "offset"
linearpattern10.Offset = 218.706574
linearpattern10.Occurrences = 2
body.Tip = linearpattern10
doc.recompute()

linearpattern11 = body.newObject("PartDesign::LinearPattern", "LinearPattern010")
linearpattern11.Originals = [groove5]
linearpattern11.Direction = (doc.getObject("X_Axis"), [""])
linearpattern11.Mode = "offset"
linearpattern11.Offset = Q("8.5 in")
linearpattern11.Occurrences = 2
linearpattern11.Reversed = True
body.Tip = linearpattern11

sketch10 = body.newObject("Sketcher::SketchObject", "Sketch009")
sketch10.AttachmentSupport = (doc.getObject("XZ_Plane"), [""])
sketch10.MapMode = "FlatFace"
sketch10.addGeometry(Part.Circle(Vector(-74.083333, 12.7, 0), Vector(0, 0, 1), 4.77139), False)
sketch10.addConstraint(Sketcher.Constraint("Diameter", 0, Q("0.3757 in")))
sketch10.addConstraint(Sketcher.Constraint("DistanceY", -1, 1, 0, 3, Q("0.5 in")))
sketch10.addConstraint(Sketcher.Constraint("DistanceX", 0, 3, -1, 1, 74.083333))
doc.recompute()
hole2 = body.newObject("PartDesign::Hole", "Hole001")
hole2.Profile = sketch10
hole2.ThreadType = "None"
hole2.Diameter = Q("0.3757 in")
hole2.DepthType = "Dimension"
hole2.Depth = Q("0.75 in")
hole2.DrillPoint = "Angled"
hole2.DrillPointAngle = 118
hole2.HoleCutType = "Countersink"
hole2.HoleCutDiameter = Q("0.56 in")
hole2.HoleCutCountersinkAngle = 90

sketch11 = body.newObject("Sketcher::SketchObject", "Sketch010")
sketch11.AttachmentSupport = (doc.getObject("XZ_Plane"), [""])
sketch11.MapMode = "FlatFace"
sketch11.addGeometry(Part.LineSegment(Vector(54.504167, 17.47139, 0), Vector(51.329167, 17.47139, 0)), False)
sketch11.addGeometry(Part.ArcOfCircle(Part.Circle(Vector(51.329167, 12.7, 0), Vector(0, 0, 1), 4.77139), math.radians(90), math.radians(270)), False)
sketch11.addGeometry(Part.LineSegment(Vector(51.329167, 7.92861, 0), Vector(54.504167, 7.92861, 0)), False)
sketch11.addGeometry(Part.ArcOfCircle(Part.Circle(Vector(54.504167, 12.7, 0), Vector(0, 0, 1), 4.77139), math.radians(-90), math.radians(90)), False)
sketch11.addConstraint(Sketcher.Constraint("Tangent", 0, 2, 1, 1))
sketch11.addConstraint(Sketcher.Constraint("Tangent", 1, 2, 2, 1))
sketch11.addConstraint(Sketcher.Constraint("Tangent", 2, 2, 3, 1))
sketch11.addConstraint(Sketcher.Constraint("Tangent", 3, 2, 0, 1))
sketch11.addConstraint(Sketcher.Constraint("Horizontal", 0))
sketch11.addConstraint(Sketcher.Constraint("Horizontal", 2))
sketch11.addConstraint(Sketcher.Constraint("DistanceY", -1, 1, 1, 3, Q("0.5 in")))
sketch11.addConstraint(Sketcher.Constraint("DistanceX", 0, 2, 0, 1, Q("0.125 in")))
sketch11.addConstraint(Sketcher.Constraint("Radius", 1, 4.77139))
sketch11.addConstraint(Sketcher.Constraint("DistanceX", -1, 1, 1, 3, 51.329167))
pocket2 = body.newObject("PartDesign::Pocket", "Pocket001")
pocket2.Profile = sketch11
pocket2.Length = Q("0.75 in")
doc.recompute()

chamfer3 = body.newObject("PartDesign::Chamfer", "Chamfer002")
chamfer3.Base = (pocket2, edges_at(pocket2, [
    (46.558, 0, 12.7),
    (52.917, 0, 7.929),
    (59.276, 0, 12.7),
    (52.917, 0, 17.471),
]))
chamfer3.Size = Q("0.09 in")

sketch12 = body.newObject("Sketcher::SketchObject", "Sketch011")
sketch12.AttachmentSupport = (doc.getObject("XY_Plane"), [""])
sketch12.MapMode = "FlatFace"
sketch12.AttachmentOffset = App.Placement(Vector(0, 0, 1 * 25.4), App.Rotation())
sketch12.addGeometry(Part.Circle(Vector(-74.083333, 15.24, 0), Vector(0, 0, 1), 2.778125), False)
sketch12.addGeometry(Part.Circle(Vector(52.916667, 15.24, 0), Vector(0, 0, 1), 2.778125), False)
sketch12.addConstraint(Sketcher.Constraint("Equal", 0, 1))
sketch12.addConstraint(Sketcher.Constraint("Horizontal", 0, 3, 1, 3))
sketch12.addConstraint(Sketcher.Constraint("Diameter", 0, Q("0.21875 in")))
sketch12.addConstraint(Sketcher.Constraint("DistanceX", 0, 3, 1, 3, Q("5 in")))
sketch12.addConstraint(Sketcher.Constraint("DistanceY", -1, 1, 0, 3, Q("0.6 in")))
sketch12.addConstraint(Sketcher.Constraint("DistanceX", 0, 3, -1, 1, 74.083333))
doc.recompute()
hole3 = body.newObject("PartDesign::Hole", "Hole002")
hole3.Profile = sketch12
hole3.ThreadType = "None"
hole3.Diameter = Q("0.21875 in")
hole3.DepthType = "ThroughAll"

doc.recompute()
